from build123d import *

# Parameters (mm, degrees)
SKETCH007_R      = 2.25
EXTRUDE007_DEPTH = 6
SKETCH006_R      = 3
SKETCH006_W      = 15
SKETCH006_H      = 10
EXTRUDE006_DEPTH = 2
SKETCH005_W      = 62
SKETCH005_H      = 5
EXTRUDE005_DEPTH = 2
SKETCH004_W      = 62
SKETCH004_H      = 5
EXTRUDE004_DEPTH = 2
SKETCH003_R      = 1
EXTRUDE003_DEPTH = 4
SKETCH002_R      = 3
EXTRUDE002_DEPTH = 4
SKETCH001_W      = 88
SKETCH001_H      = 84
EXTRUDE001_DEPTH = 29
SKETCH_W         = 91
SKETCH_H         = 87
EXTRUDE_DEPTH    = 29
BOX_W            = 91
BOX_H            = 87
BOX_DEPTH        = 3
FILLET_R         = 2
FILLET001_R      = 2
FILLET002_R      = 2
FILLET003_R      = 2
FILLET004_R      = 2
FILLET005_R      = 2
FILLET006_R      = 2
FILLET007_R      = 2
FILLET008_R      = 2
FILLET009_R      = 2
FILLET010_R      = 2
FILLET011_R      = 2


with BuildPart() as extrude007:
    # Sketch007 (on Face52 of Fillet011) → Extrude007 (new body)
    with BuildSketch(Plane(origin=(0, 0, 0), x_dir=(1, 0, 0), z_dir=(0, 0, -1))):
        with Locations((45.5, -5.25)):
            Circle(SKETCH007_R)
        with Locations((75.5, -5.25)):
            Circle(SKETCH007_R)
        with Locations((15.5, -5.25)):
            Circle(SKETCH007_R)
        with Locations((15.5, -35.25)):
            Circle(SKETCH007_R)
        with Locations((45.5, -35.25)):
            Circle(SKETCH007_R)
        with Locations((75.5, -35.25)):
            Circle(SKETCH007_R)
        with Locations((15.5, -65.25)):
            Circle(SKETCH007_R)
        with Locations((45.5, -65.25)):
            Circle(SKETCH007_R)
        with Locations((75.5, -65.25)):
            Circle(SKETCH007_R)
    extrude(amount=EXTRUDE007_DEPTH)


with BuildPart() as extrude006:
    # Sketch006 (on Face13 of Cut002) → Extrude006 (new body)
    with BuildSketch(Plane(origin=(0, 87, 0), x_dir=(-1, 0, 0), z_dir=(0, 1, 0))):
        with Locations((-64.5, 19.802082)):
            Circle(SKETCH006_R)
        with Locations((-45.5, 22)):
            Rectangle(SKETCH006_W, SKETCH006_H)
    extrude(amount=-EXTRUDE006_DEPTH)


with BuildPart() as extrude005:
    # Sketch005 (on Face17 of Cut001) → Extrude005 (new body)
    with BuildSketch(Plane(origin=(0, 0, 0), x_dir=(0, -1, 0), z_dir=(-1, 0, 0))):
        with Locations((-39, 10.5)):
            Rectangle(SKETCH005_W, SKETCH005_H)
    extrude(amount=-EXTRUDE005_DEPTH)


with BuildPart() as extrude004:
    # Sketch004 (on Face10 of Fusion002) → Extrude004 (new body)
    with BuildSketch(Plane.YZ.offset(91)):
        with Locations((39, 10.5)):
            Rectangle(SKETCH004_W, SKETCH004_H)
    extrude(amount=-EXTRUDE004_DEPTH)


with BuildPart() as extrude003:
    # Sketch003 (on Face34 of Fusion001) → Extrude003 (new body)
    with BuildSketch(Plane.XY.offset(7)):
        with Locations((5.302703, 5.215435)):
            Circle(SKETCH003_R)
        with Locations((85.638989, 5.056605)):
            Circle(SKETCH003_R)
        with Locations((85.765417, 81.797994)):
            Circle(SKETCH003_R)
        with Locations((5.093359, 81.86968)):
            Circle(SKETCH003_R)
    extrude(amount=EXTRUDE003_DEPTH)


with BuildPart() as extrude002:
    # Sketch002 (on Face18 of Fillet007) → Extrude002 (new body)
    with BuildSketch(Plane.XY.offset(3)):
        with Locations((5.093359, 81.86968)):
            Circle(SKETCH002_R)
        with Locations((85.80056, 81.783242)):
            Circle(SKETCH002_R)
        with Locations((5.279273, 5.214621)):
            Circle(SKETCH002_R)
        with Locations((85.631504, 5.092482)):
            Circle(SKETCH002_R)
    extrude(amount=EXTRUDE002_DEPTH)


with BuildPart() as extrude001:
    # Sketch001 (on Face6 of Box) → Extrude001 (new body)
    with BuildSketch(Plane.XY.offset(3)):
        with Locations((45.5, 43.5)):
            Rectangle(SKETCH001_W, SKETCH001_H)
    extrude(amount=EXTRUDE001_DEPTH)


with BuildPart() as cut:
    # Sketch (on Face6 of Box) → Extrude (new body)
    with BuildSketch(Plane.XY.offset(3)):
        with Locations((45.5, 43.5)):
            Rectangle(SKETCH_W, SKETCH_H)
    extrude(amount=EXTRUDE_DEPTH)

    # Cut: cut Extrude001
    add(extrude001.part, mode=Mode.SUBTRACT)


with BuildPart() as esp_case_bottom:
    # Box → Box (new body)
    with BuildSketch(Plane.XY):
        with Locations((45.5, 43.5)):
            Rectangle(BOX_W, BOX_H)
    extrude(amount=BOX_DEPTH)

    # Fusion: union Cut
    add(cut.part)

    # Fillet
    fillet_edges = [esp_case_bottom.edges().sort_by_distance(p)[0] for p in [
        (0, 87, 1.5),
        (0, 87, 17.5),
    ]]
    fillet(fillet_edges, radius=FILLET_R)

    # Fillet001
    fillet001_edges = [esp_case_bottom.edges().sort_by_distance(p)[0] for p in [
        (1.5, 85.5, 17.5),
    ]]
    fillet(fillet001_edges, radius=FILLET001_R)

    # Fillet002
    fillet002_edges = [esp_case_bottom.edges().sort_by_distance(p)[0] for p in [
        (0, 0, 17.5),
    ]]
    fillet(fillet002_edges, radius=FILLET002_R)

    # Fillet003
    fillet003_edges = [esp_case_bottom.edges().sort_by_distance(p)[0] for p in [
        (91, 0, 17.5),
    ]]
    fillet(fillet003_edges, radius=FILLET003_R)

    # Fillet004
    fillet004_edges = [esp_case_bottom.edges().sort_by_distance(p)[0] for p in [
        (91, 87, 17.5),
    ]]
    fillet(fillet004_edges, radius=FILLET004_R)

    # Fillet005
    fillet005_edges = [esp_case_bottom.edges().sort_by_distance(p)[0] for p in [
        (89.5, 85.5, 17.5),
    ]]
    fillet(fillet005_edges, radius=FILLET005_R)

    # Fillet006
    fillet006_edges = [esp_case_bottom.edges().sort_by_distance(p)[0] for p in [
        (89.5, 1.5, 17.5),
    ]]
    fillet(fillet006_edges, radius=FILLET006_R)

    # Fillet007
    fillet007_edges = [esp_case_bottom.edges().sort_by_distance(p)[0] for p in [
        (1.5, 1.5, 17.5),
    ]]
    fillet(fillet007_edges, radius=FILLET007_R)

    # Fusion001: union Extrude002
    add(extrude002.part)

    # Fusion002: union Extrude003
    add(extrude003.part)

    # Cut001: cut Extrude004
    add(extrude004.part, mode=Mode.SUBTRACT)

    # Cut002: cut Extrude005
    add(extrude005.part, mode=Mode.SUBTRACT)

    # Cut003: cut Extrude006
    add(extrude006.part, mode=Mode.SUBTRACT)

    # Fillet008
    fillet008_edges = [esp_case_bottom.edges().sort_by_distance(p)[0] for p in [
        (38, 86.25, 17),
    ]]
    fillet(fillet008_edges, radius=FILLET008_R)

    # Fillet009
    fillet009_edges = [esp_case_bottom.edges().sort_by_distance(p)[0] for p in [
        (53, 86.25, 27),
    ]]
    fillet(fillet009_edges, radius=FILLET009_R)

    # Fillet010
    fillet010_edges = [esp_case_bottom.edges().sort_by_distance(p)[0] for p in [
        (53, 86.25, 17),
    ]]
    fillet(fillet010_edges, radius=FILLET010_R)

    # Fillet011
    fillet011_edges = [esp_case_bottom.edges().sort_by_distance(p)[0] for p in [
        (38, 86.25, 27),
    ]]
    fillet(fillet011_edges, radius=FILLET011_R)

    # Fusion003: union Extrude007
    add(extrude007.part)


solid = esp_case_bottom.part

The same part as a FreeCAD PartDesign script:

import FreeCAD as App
import Part
import Sketcher

V = App.Vector


def edges_at(feature, points):
    """Names of the edges that pass closest to the given points."""
    edges = feature.Shape.Edges
    near = lambda p: min(range(len(edges)), key=lambda i: edges[i].distToShape(Part.Vertex(*p))[0])
    return sorted({f"Edge{near(p) + 1}" for p in points})

doc = App.newDocument("Part")
body = doc.addObject("PartDesign::Body", "Body")
body.AllowCompound = True

# Sketch on XY plane
sketch1 = body.newObject("Sketcher::SketchObject", "Sketch")
sketch1.AttachmentSupport = (doc.getObject("XY_Plane"), [""])
sketch1.MapMode = "FlatFace"
sketch1.addGeometry([
    Part.Circle(V(45.5, 5.2, 0), V(0, 0, 1), 2.2),  # 0
    Part.Circle(V(75.5, 5.2, 0), V(0, 0, 1), 2.2),  # 1
    Part.Circle(V(15.5, 5.2, 0), V(0, 0, 1), 2.2),  # 2
    Part.Circle(V(15.5, 35.2, 0), V(0, 0, 1), 2.2),  # 3
    Part.Circle(V(45.5, 35.2, 0), V(0, 0, 1), 2.2),  # 4
    Part.Circle(V(75.5, 35.2, 0), V(0, 0, 1), 2.2),  # 5
    Part.Circle(V(15.5, 65.2, 0), V(0, 0, 1), 2.2),  # 6
    Part.Circle(V(45.5, 65.2, 0), V(0, 0, 1), 2.2),  # 7
    Part.Circle(V(75.5, 65.2, 0), V(0, 0, 1), 2.2),  # 8
], False)
sketch1.addConstraint([
    Sketcher.Constraint("Equal", 0, 1),
    Sketcher.Constraint("Equal", 1, 2),
    Sketcher.Constraint("Equal", 2, 3),
    Sketcher.Constraint("Equal", 3, 4),
    Sketcher.Constraint("Equal", 4, 5),
    Sketcher.Constraint("Equal", 5, 6),
    Sketcher.Constraint("Equal", 6, 7),
    Sketcher.Constraint("Equal", 7, 8),
    Sketcher.Constraint("Horizontal", 0, 3, 1, 3),
    Sketcher.Constraint("Horizontal", 1, 3, 2, 3),
    Sketcher.Constraint("Horizontal", 3, 3, 4, 3),
    Sketcher.Constraint("Horizontal", 4, 3, 5, 3),
    Sketcher.Constraint("Horizontal", 6, 3, 7, 3),
    Sketcher.Constraint("Horizontal", 7, 3, 8, 3),
    Sketcher.Constraint("Vertical", 2, 3, 3, 3),
    Sketcher.Constraint("Vertical", 0, 3, 4, 3),
    Sketcher.Constraint("Vertical", 1, 3, 5, 3),
    Sketcher.Constraint("Vertical", 3, 3, 6, 3),
    Sketcher.Constraint("Vertical", 4, 3, 7, 3),
    Sketcher.Constraint("Vertical", 5, 3, 8, 3),
    Sketcher.Constraint("Diameter", 0, 4.5),
    Sketcher.Constraint("DistanceX", 0, 3, 1, 3, 30.0),
    Sketcher.Constraint("DistanceX", 2, 3, 0, 3, 30.0),
    Sketcher.Constraint("DistanceY", 2, 3, 3, 3, 30.0),
    Sketcher.Constraint("DistanceY", 3, 3, 6, 3, 30.0),
    Sketcher.Constraint("DistanceX", -1, 1, 0, 3, 45.5),
    Sketcher.Constraint("DistanceY", -1, 1, 0, 3, 5.25),
])
pad1 = body.newObject("PartDesign::Pad", "Pad")
pad1.Profile = sketch1
pad1.Length = 6
pad1.Reversed = True
body2 = doc.addObject("PartDesign::Body", "Body001")
body2.AllowCompound = True

# Sketch on XZ plane
sketch2 = body2.newObject("Sketcher::SketchObject", "Sketch001")
sketch2.AttachmentSupport = (doc.getObject("XZ_Plane001"), [""])
sketch2.MapMode = "FlatFace"
sketch2.AttachmentOffset = App.Placement(V(0, 0, -87), App.Rotation())
sketch2.addGeometry([
    Part.Circle(V(64.5, 19.8, 0), V(0, 0, 1), 3),  # 0
    Part.LineSegment(V(53, 27, 0), V(53, 17, 0)),  # 1
    Part.LineSegment(V(53, 17, 0), V(38, 17, 0)),  # 2
    Part.LineSegment(V(38, 17, 0), V(38, 27, 0)),  # 3
    Part.LineSegment(V(38, 27, 0), V(53, 27, 0)),  # 4
], False)
sketch2.addConstraint([
    Sketcher.Constraint("Coincident", 1, 2, 2, 1),
    Sketcher.Constraint("Coincident", 2, 2, 3, 1),
    Sketcher.Constraint("Coincident", 3, 2, 4, 1),
    Sketcher.Constraint("Coincident", 4, 2, 1, 1),
    Sketcher.Constraint("Vertical", 1),
    Sketcher.Constraint("Horizontal", 2),
    Sketcher.Constraint("Vertical", 3),
    Sketcher.Constraint("Horizontal", 4),
    Sketcher.Constraint("Diameter", 0, 6.0),
    Sketcher.Constraint("DistanceX", 2, 2, 2, 1, 15.0),
    Sketcher.Constraint("DistanceY", 1, 2, 1, 1, 10.0),
    Sketcher.Constraint("DistanceX", -1, 1, 1, 2, 53.0),
    Sketcher.Constraint("DistanceY", -1, 1, 1, 2, 17.0),
    Sketcher.Constraint("DistanceX", -1, 1, 0, 3, 64.5),
    Sketcher.Constraint("DistanceY", -1, 1, 0, 3, 19.802082),
])
pad2 = body2.newObject("PartDesign::Pad", "Pad001")
pad2.Profile = sketch2
pad2.Length = 2
body3 = doc.addObject("PartDesign::Body", "Body002")

# Sketch on YZ plane
sketch3 = body3.newObject("Sketcher::SketchObject", "Sketch002")
sketch3.AttachmentSupport = (doc.getObject("YZ_Plane002"), [""])
sketch3.MapMode = "FlatFace"
sketch3.addGeometry([
    Part.LineSegment(V(70, 13, 0), V(70, 8, 0)),
    Part.LineSegment(V(70, 8, 0), V(8, 8, 0)),
    Part.LineSegment(V(8, 8, 0), V(8, 13, 0)),
    Part.LineSegment(V(8, 13, 0), V(70, 13, 0)),
], False)
sketch3.addConstraint([
    Sketcher.Constraint("Coincident", 0, 2, 1, 1),
    Sketcher.Constraint("Coincident", 1, 2, 2, 1),
    Sketcher.Constraint("Coincident", 2, 2, 3, 1),
    Sketcher.Constraint("Coincident", 3, 2, 0, 1),
    Sketcher.Constraint("Vertical", 0),
    Sketcher.Constraint("Horizontal", 1),
    Sketcher.Constraint("Vertical", 2),
    Sketcher.Constraint("Horizontal", 3),
    Sketcher.Constraint("DistanceX", 1, 2, 1, 1, 62.0),
    Sketcher.Constraint("DistanceY", 0, 2, 0, 1, 5.0),
    Sketcher.Constraint("DistanceX", -1, 1, 0, 2, 70.0),
    Sketcher.Constraint("DistanceY", -1, 1, 0, 2, 8.0),
])
pad3 = body3.newObject("PartDesign::Pad", "Pad002")
pad3.Profile = sketch3
pad3.Length = 2
body4 = doc.addObject("PartDesign::Body", "Body003")

# Sketch on YZ plane
sketch4 = body4.newObject("Sketcher::SketchObject", "Sketch003")
sketch4.AttachmentSupport = (doc.getObject("YZ_Plane003"), [""])
sketch4.MapMode = "FlatFace"
sketch4.AttachmentOffset = App.Placement(V(0, 0, 91), App.Rotation())
sketch4.addGeometry([
    Part.LineSegment(V(8, 13, 0), V(8, 8, 0)),
    Part.LineSegment(V(8, 8, 0), V(70, 8, 0)),
    Part.LineSegment(V(70, 8, 0), V(70, 13, 0)),
    Part.LineSegment(V(70, 13, 0), V(8, 13, 0)),
], False)
sketch4.addConstraint([
    Sketcher.Constraint("Coincident", 0, 2, 1, 1),
    Sketcher.Constraint("Coincident", 1, 2, 2, 1),
    Sketcher.Constraint("Coincident", 2, 2, 3, 1),
    Sketcher.Constraint("Coincident", 3, 2, 0, 1),
    Sketcher.Constraint("Vertical", 0),
    Sketcher.Constraint("Horizontal", 1),
    Sketcher.Constraint("Vertical", 2),
    Sketcher.Constraint("Horizontal", 3),
    Sketcher.Constraint("DistanceX", 1, 1, 1, 2, 62.0),
    Sketcher.Constraint("DistanceY", 0, 2, 0, 1, 5.0),
    Sketcher.Constraint("DistanceX", -1, 1, 0, 2, 8.0),
    Sketcher.Constraint("DistanceY", -1, 1, 0, 2, 8.0),
])
pad4 = body4.newObject("PartDesign::Pad", "Pad003")
pad4.Profile = sketch4
pad4.Length = 2
pad4.Reversed = True
body5 = doc.addObject("PartDesign::Body", "Body004")
body5.AllowCompound = True

# Sketch on XY plane
sketch5 = body5.newObject("Sketcher::SketchObject", "Sketch004")
sketch5.AttachmentSupport = (doc.getObject("XY_Plane004"), [""])
sketch5.MapMode = "FlatFace"
sketch5.AttachmentOffset = App.Placement(V(0, 0, 7), App.Rotation())
sketch5.addGeometry([
    Part.Circle(V(5.3, 5.2, 0), V(0, 0, 1), 1),
    Part.Circle(V(85.6, 5.1, 0), V(0, 0, 1), 1),
    Part.Circle(V(85.8, 81.8, 0), V(0, 0, 1), 1),
    Part.Circle(V(5.1, 81.9, 0), V(0, 0, 1), 1),
], False)
sketch5.addConstraint([
    Sketcher.Constraint("Equal", 0, 1),
    Sketcher.Constraint("Equal", 1, 2),
    Sketcher.Constraint("Equal", 2, 3),
    Sketcher.Constraint("Diameter", 0, 2.0),
    Sketcher.Constraint("DistanceX", -1, 1, 1, 3, 85.638989),
    Sketcher.Constraint("DistanceX", -1, 1, 3, 3, 5.093359),
    Sketcher.Constraint("DistanceY", -1, 1, 3, 3, 81.86968),
    Sketcher.Constraint("DistanceY", 1, 3, 0, 3, 0.15883),
    Sketcher.Constraint("DistanceX", 1, 3, 2, 3, 0.126428),
    Sketcher.Constraint("DistanceY", 1, 3, 2, 3, 76.741389),
    Sketcher.Constraint("DistanceX", -1, 1, 0, 3, 5.302703),
    Sketcher.Constraint("DistanceY", -1, 1, 0, 3, 5.215435),
])
pad5 = body5.newObject("PartDesign::Pad", "Pad004")
pad5.Profile = sketch5
pad5.Length = 4
body6 = doc.addObject("PartDesign::Body", "Body005")
body6.AllowCompound = True

# Sketch on XY plane
sketch6 = body6.newObject("Sketcher::SketchObject", "Sketch005")
sketch6.AttachmentSupport = (doc.getObject("XY_Plane005"), [""])
sketch6.MapMode = "FlatFace"
sketch6.AttachmentOffset = App.Placement(V(0, 0, 3), App.Rotation())
sketch6.addGeometry([
    Part.Circle(V(5.1, 81.9, 0), V(0, 0, 1), 3),
    Part.Circle(V(85.8, 81.8, 0), V(0, 0, 1), 3),
    Part.Circle(V(5.3, 5.2, 0), V(0, 0, 1), 3),
    Part.Circle(V(85.6, 5.1, 0), V(0, 0, 1), 3),
], False)
sketch6.addConstraint([
    Sketcher.Constraint("Equal", 0, 1),
    Sketcher.Constraint("Equal", 1, 2),
    Sketcher.Constraint("Equal", 2, 3),
    Sketcher.Constraint("Diameter", 0, 6.0),
    Sketcher.Constraint("DistanceX", 0, 3, 1, 3, 80.707201),
    Sketcher.Constraint("DistanceY", 3, 3, 0, 3, 76.777198),
    Sketcher.Constraint("DistanceX", -1, 1, 0, 3, 5.093359),
    Sketcher.Constraint("DistanceY", -1, 1, 0, 3, 81.86968),
    Sketcher.Constraint("DistanceY", -1, 1, 1, 3, 81.783242),
    Sketcher.Constraint("DistanceY", -1, 1, 2, 3, 5.214621),
    Sketcher.Constraint("DistanceX", 2, 3, 3, 3, 80.352231),
    Sketcher.Constraint("DistanceX", -1, 1, 2, 3, 5.279273),
])
pad6 = body6.newObject("PartDesign::Pad", "Pad005")
pad6.Profile = sketch6
pad6.Length = 4
body7 = doc.addObject("PartDesign::Body", "Body006")

# Sketch on XY plane
sketch7 = body7.newObject("Sketcher::SketchObject", "Sketch006")
sketch7.AttachmentSupport = (doc.getObject("XY_Plane006"), [""])
sketch7.MapMode = "FlatFace"
sketch7.AttachmentOffset = App.Placement(V(0, 0, 3), App.Rotation())
sketch7.addGeometry([
    Part.LineSegment(V(2, 86, 0), V(2, 2, 0)),
    Part.LineSegment(V(2, 2, 0), V(90, 2, 0)),
    Part.LineSegment(V(90, 2, 0), V(90, 86, 0)),
    Part.LineSegment(V(90, 86, 0), V(2, 86, 0)),
], False)
sketch7.addConstraint([
    Sketcher.Constraint("Coincident", 0, 2, 1, 1),
    Sketcher.Constraint("Coincident", 1, 2, 2, 1),
    Sketcher.Constraint("Coincident", 2, 2, 3, 1),
    Sketcher.Constraint("Coincident", 3, 2, 0, 1),
    Sketcher.Constraint("Vertical", 0),
    Sketcher.Constraint("Horizontal", 1),
    Sketcher.Constraint("Vertical", 2),
    Sketcher.Constraint("Horizontal", 3),
    Sketcher.Constraint("DistanceX", 1, 1, 1, 2, 88.0),
    Sketcher.Constraint("DistanceY", 0, 2, 0, 1, 84.0),
    Sketcher.Constraint("DistanceX", -1, 1, 0, 2, 1.5),
    Sketcher.Constraint("DistanceY", -1, 1, 0, 2, 1.5),
])
pad7 = body7.newObject("PartDesign::Pad", "Pad006")
pad7.Profile = sketch7
pad7.Length = 29
body8 = doc.addObject("PartDesign::Body", "Body007")

# Sketch on XY plane
sketch8 = body8.newObject("Sketcher::SketchObject", "Sketch007")
sketch8.AttachmentSupport = (doc.getObject("XY_Plane007"), [""])
sketch8.MapMode = "FlatFace"
sketch8.AttachmentOffset = App.Placement(V(0, 0, 3), App.Rotation())
sketch8.addGeometry([
    Part.LineSegment(V(0, 87, 0), V(0, 0, 0)),
    Part.LineSegment(V(0, 0, 0), V(91, 0, 0)),
    Part.LineSegment(V(91, 0, 0), V(91, 87, 0)),
    Part.LineSegment(V(91, 87, 0), V(0, 87, 0)),
], False)
sketch8.addConstraint([
    Sketcher.Constraint("Coincident", 0, 2, 1, 1),
    Sketcher.Constraint("Coincident", 1, 2, 2, 1),
    Sketcher.Constraint("Coincident", 2, 2, 3, 1),
    Sketcher.Constraint("Coincident", 3, 2, 0, 1),
    Sketcher.Constraint("Vertical", 0),
    Sketcher.Constraint("Horizontal", 1),
    Sketcher.Constraint("Vertical", 2),
    Sketcher.Constraint("Horizontal", 3),
    Sketcher.Constraint("Coincident", 0, 2, -1, 1),
    Sketcher.Constraint("DistanceX", 1, 1, 1, 2, 91.0),
    Sketcher.Constraint("DistanceY", 0, 2, 0, 1, 87.0),
])
pad8 = body8.newObject("PartDesign::Pad", "Pad007")
pad8.Profile = sketch8
pad8.Length = 29
doc.recompute()

boolean = body8.newObject("PartDesign::Boolean", "Boolean")
boolean.Type = "Cut"
boolean.addObjects([body7])
body9 = doc.addObject("PartDesign::Body", "Body008")

# Sketch on XY plane
sketch9 = body9.newObject("Sketcher::SketchObject", "Sketch008")
sketch9.AttachmentSupport = (doc.getObject("XY_Plane008"), [""])
sketch9.MapMode = "FlatFace"
sketch9.addGeometry([
    Part.LineSegment(V(0, 87, 0), V(0, 0, 0)),
    Part.LineSegment(V(0, 0, 0), V(91, 0, 0)),
    Part.LineSegment(V(91, 0, 0), V(91, 87, 0)),
    Part.LineSegment(V(91, 87, 0), V(0, 87, 0)),
], False)
sketch9.addConstraint([
    Sketcher.Constraint("Coincident", 0, 2, 1, 1),
    Sketcher.Constraint("Coincident", 1, 2, 2, 1),
    Sketcher.Constraint("Coincident", 2, 2, 3, 1),
    Sketcher.Constraint("Coincident", 3, 2, 0, 1),
    Sketcher.Constraint("Vertical", 0),
    Sketcher.Constraint("Horizontal", 1),
    Sketcher.Constraint("Vertical", 2),
    Sketcher.Constraint("Horizontal", 3),
    Sketcher.Constraint("Coincident", 0, 2, -1, 1),
    Sketcher.Constraint("DistanceX", 1, 1, 1, 2, 91.0),
    Sketcher.Constraint("DistanceY", 0, 2, 0, 1, 87.0),
])
pad9 = body9.newObject("PartDesign::Pad", "Pad008")
pad9.Profile = sketch9
pad9.Length = 3
doc.recompute()

boolean2 = body9.newObject("PartDesign::Boolean", "Boolean001")
boolean2.Type = "Fuse"
boolean2.addObjects([body8])
doc.recompute()

fillet = body9.newObject("PartDesign::Fillet", "Fillet")
fillet.Base = (boolean2, edges_at(boolean2, [(0, 87, 16), (0, 87, 16)]))
fillet.Radius = 2
doc.recompute()

fillet2 = body9.newObject("PartDesign::Fillet", "Fillet001")
fillet2.Base = (fillet, edges_at(fillet, [(1.5, 85.5, 17.5)]))
fillet2.Radius = 2
doc.recompute()

fillet3 = body9.newObject("PartDesign::Fillet", "Fillet002")
fillet3.Base = (fillet2, edges_at(fillet2, [(0, 0, 16)]))
fillet3.Radius = 2
doc.recompute()

fillet4 = body9.newObject("PartDesign::Fillet", "Fillet003")
fillet4.Base = (fillet3, edges_at(fillet3, [(91, 0, 16)]))
fillet4.Radius = 2
doc.recompute()

fillet5 = body9.newObject("PartDesign::Fillet", "Fillet004")
fillet5.Base = (fillet4, edges_at(fillet4, [(91, 87, 16)]))
fillet5.Radius = 2
doc.recompute()

fillet6 = body9.newObject("PartDesign::Fillet", "Fillet005")
fillet6.Base = (fillet5, edges_at(fillet5, [(89.5, 85.5, 17.5)]))
fillet6.Radius = 2
doc.recompute()

fillet7 = body9.newObject("PartDesign::Fillet", "Fillet006")
fillet7.Base = (fillet6, edges_at(fillet6, [(89.5, 1.5, 17.5)]))
fillet7.Radius = 2
doc.recompute()

fillet8 = body9.newObject("PartDesign::Fillet", "Fillet007")
fillet8.Base = (fillet7, edges_at(fillet7, [(1.5, 1.5, 17.5)]))
fillet8.Radius = 2
doc.recompute()

boolean3 = body9.newObject("PartDesign::Boolean", "Boolean002")
boolean3.Type = "Fuse"
boolean3.addObjects([body6])
doc.recompute()

boolean4 = body9.newObject("PartDesign::Boolean", "Boolean003")
boolean4.Type = "Fuse"
boolean4.addObjects([body5])
doc.recompute()

boolean5 = body9.newObject("PartDesign::Boolean", "Boolean004")
boolean5.Type = "Cut"
boolean5.addObjects([body4])
doc.recompute()

boolean6 = body9.newObject("PartDesign::Boolean", "Boolean005")
boolean6.Type = "Cut"
boolean6.addObjects([body3])
doc.recompute()

boolean7 = body9.newObject("PartDesign::Boolean", "Boolean006")
boolean7.Type = "Cut"
boolean7.addObjects([body2])
doc.recompute()

fillet9 = body9.newObject("PartDesign::Fillet", "Fillet008")
fillet9.Base = (boolean7, edges_at(boolean7, [(38, 86.25, 17)]))
fillet9.Radius = 2
doc.recompute()

fillet10 = body9.newObject("PartDesign::Fillet", "Fillet009")
fillet10.Base = (fillet9, edges_at(fillet9, [(53, 86.25, 27)]))
fillet10.Radius = 2
doc.recompute()

fillet11 = body9.newObject("PartDesign::Fillet", "Fillet010")
fillet11.Base = (fillet10, edges_at(fillet10, [(53, 86.25, 17)]))
fillet11.Radius = 2
doc.recompute()

fillet12 = body9.newObject("PartDesign::Fillet", "Fillet011")
fillet12.Base = (fillet11, edges_at(fillet11, [(38, 86.25, 27)]))
fillet12.Radius = 2
doc.recompute()

boolean8 = body9.newObject("PartDesign::Boolean", "Boolean007")
boolean8.Type = "Fuse"
boolean8.addObjects([body])

doc.recompute()
